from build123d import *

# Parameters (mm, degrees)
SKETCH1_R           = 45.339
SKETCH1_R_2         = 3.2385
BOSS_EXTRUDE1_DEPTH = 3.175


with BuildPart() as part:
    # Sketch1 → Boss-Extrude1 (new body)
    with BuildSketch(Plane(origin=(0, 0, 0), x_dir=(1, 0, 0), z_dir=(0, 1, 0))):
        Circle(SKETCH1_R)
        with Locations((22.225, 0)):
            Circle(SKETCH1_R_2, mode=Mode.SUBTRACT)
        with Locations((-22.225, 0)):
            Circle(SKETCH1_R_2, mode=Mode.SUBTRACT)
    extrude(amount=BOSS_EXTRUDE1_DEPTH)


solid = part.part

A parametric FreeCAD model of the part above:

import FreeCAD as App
import Part
import Sketcher

V = App.Vector
Q = App.Units.Quantity

doc = App.newDocument("Part")
body = doc.addObject("PartDesign::Body", "Body")

sketch1 = doc.addObject("Sketcher::SketchObject", "Sketch")
body.addObject(sketch1)
sketch1.AttachmentSupport = (doc.XZ_Plane, [""])
sketch1.MapMode = "FlatFace"
sketch1.addGeometry([
    Part.Circle(V(0, 0, 0), V(0, 0, 1), 45.3),
    Part.Circle(V(-22.2, 0, 0), V(0, 0, 1), 3.2),
    Part.Circle(V(22.2, 0, 0), V(0, 0, 1), 3.2),
], False)
sketch1.addConstraint([
    Sketcher.Constraint("Coincident", 0, 3, -1, 1),
    Sketcher.Constraint("Equal", 1, 2),
    Sketcher.Constraint("Symmetric", 1, 3, 2, 3, -1, 1),
    Sketcher.Constraint("PointOnObject", 1, 3, -1),
    Sketcher.Constraint("Diameter", 0, Q("3.57 in")),
    Sketcher.Constraint("Diameter", 1, Q("0.255 in")),
    Sketcher.Constraint("DistanceX", 1, 3, 2, 3, Q("1.75 in")),
])
pad1 = doc.addObject("PartDesign::Pad", "Pad")
body.addObject(pad1)
pad1.Profile = sketch1
pad1.Length = Q("0.125 in")
pad1.Reversed = True

doc.recompute()
